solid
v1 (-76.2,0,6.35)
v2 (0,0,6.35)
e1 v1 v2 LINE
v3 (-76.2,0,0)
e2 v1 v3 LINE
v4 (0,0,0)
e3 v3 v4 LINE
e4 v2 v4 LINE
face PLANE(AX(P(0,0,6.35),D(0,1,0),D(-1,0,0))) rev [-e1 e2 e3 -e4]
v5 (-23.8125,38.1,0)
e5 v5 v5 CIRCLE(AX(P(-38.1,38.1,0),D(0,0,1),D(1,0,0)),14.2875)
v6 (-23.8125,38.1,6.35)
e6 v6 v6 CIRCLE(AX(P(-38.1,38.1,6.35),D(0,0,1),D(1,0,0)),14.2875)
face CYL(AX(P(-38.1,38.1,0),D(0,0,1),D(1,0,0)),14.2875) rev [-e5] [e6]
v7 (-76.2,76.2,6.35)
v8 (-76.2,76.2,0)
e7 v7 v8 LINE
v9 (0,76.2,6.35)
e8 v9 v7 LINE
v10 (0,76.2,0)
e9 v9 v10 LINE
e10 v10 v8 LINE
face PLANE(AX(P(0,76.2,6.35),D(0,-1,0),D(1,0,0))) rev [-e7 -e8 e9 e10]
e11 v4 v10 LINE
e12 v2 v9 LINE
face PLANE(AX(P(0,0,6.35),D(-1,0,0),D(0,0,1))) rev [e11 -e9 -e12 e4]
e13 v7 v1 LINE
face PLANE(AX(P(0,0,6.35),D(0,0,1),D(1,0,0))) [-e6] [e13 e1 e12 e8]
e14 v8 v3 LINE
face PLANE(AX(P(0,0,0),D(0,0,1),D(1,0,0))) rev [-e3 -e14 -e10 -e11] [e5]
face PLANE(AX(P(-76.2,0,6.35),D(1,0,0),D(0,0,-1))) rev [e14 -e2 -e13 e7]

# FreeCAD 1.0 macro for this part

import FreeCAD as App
import Part
import Sketcher
Q = App.Units.Quantity


def add_polygon(sketch, points):
    """Adds a closed chain of lines whose ends are joined by coincident constraints."""
    first, n = sketch.GeometryCount, len(points)
    for a, b in zip(points, points[1:] + points[:1]):
        sketch.addGeometry(Part.LineSegment(App.Vector(*a, 0), App.Vector(*b, 0)), False)
    for i in range(n):
        sketch.addConstraint(Sketcher.Constraint("Coincident", first + i, 2, first + (i + 1) % n, 1))

doc = App.newDocument("Part")
body = doc.addObject("PartDesign::Body", "Body")

# Sketch on XY plane
sketch1 = doc.addObject("Sketcher::SketchObject", "Sketch")
body.addObject(sketch1)
sketch1.AttachmentSupport = (doc.XY_Plane, [""])
sketch1.MapMode = "FlatFace"
add_polygon(sketch1, [(-76, 76), (-76, 0), (0, 0), (0, 76)])  # lines 0-3
sketch1.addConstraint([
    Sketcher.Constraint("Vertical", 0),
    Sketcher.Constraint("Horizontal", 1),
    Sketcher.Constraint("Vertical", 2),
    Sketcher.Constraint("Horizontal", 3),
    Sketcher.Constraint("Coincident", 1, 2, -1, 1),
    Sketcher.Constraint("Equal", 3, 0),
    Sketcher.Constraint("DistanceX", 1, 1, 1, 2, Q("3 in")),
])
pad1 = doc.addObject("PartDesign::Pad", "Pad")
body.addObject(pad1)
pad1.Profile = sketch1
pad1.Length = Q("0.25 in")

# Sketch on XY plane
sketch2 = doc.addObject("Sketcher::SketchObject", "Sketch001")
body.addObject(sketch2)
sketch2.AttachmentSupport = (doc.XY_Plane, [""])
sketch2.MapMode = "FlatFace"
sketch2.AttachmentOffset = App.Placement(App.Vector(0, 0, 0.25 * 25.4), App.Rotation())
sketch2.addGeometry(Part.Circle(App.Vector(-38, 38, 0), App.Vector(0, 0, 1), 14), False)
sketch2.addConstraint([
    Sketcher.Constraint("Diameter", 0, Q("1.125 in")),
    Sketcher.Constraint("DistanceX", 0, 3, -1, 1, Q("1.5 in")),
    Sketcher.Constraint("DistanceY", -1, 1, 0, 3, Q("1.5 in")),
])
pocket1 = doc.addObject("PartDesign::Pocket", "Pocket")
body.addObject(pocket1)
pocket1.Profile = sketch2
pocket1.Type = "ThroughAll"

doc.recompute()
